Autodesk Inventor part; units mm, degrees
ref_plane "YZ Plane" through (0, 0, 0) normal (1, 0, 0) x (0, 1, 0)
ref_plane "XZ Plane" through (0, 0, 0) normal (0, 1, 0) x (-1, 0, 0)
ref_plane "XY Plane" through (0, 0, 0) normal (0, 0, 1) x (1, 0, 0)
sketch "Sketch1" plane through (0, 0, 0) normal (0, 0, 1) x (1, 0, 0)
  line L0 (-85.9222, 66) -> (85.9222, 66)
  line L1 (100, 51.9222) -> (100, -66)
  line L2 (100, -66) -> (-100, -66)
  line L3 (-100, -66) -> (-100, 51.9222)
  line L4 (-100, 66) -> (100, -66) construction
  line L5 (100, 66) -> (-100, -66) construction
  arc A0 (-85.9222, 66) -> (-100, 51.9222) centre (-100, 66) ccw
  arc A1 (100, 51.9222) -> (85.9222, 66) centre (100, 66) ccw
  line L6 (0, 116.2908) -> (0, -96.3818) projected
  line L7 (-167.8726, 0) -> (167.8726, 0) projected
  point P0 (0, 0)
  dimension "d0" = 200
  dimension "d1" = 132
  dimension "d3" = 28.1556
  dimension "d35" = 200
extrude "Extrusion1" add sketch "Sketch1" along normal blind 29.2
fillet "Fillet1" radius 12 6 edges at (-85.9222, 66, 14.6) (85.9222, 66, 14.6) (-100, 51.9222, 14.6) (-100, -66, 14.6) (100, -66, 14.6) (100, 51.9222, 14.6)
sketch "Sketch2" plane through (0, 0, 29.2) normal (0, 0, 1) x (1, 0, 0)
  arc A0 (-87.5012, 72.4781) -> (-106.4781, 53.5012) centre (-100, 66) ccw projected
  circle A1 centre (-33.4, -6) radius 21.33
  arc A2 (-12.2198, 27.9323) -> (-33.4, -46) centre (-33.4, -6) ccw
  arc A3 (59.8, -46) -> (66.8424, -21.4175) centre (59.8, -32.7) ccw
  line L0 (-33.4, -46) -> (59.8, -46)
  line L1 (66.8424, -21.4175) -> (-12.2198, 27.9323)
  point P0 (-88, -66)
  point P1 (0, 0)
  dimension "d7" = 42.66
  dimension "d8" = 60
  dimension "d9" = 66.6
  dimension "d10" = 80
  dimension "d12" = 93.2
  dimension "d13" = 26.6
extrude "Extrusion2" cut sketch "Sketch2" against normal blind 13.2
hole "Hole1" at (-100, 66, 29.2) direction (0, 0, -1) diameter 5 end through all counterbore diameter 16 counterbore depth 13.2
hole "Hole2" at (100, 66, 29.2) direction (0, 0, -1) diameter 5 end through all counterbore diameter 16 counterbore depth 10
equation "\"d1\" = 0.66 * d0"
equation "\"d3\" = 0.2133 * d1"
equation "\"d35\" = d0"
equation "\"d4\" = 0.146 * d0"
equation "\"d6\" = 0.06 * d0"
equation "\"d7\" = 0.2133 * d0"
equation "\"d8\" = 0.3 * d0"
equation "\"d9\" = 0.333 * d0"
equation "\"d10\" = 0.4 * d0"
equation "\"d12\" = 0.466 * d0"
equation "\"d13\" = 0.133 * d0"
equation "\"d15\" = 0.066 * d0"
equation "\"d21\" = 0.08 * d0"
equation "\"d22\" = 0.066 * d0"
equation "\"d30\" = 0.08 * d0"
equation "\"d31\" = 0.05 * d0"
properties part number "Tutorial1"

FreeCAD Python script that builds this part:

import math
import FreeCAD as App
import Part
import Sketcher
Q = App.Units.Quantity


def edges_at(feature, points):
    """Names of the edges that pass closest to the given points."""
    edges = feature.Shape.Edges
    near = lambda p: min(range(len(edges)), key=lambda i: edges[i].distToShape(Part.Vertex(*p))[0])
    return sorted({f"Edge{near(p) + 1}" for p in points})

doc = App.newDocument("Part")
body = doc.addObject("PartDesign::Body", "Body")

# Sketch on XY plane
sketch1 = body.newObject("Sketcher::SketchObject", "Sketch")
sketch1.AttachmentSupport = (doc.getObject("XY_Plane"), [""])
sketch1.MapMode = "FlatFace"
sketch1.addGeometry([
    Part.ArcOfCircle(Part.Circle(App.Vector(-100, 66, 0), App.Vector(0, 0, 1), 14), math.radians(0), math.radians(270)),  # 0
    Part.LineSegment(App.Vector(-100, 52, 0), App.Vector(-100, -66, 0)),  # 1
    Part.LineSegment(App.Vector(-100, -66, 0), App.Vector(100, -66, 0)),  # 2
    Part.LineSegment(App.Vector(100, -66, 0), App.Vector(100, 52, 0)),  # 3
    Part.ArcOfCircle(Part.Circle(App.Vector(100, 66, 0), App.Vector(0, 0, 1), 14), math.radians(-90), math.radians(180)),  # 4
    Part.LineSegment(App.Vector(86, 66, 0), App.Vector(-86, 66, 0)),  # 5
], False)
sketch1.addConstraint([
    Sketcher.Constraint("Coincident", 0, 2, 1, 1),
    Sketcher.Constraint("Coincident", 1, 2, 2, 1),
    Sketcher.Constraint("Coincident", 2, 2, 3, 1),
    Sketcher.Constraint("Coincident", 3, 2, 4, 1),
    Sketcher.Constraint("Coincident", 4, 2, 5, 1),
    Sketcher.Constraint("Coincident", 5, 2, 0, 1),
    Sketcher.Constraint("Vertical", 1),
    Sketcher.Constraint("Horizontal", 2),
    Sketcher.Constraint("Vertical", 3),
    Sketcher.Constraint("Horizontal", 5),
    Sketcher.Constraint("Equal", 0, 4),
    Sketcher.Constraint("Symmetric", 0, 3, 4, 3, -2),
    Sketcher.Constraint("Horizontal", 0, 3, 4, 2),
    Sketcher.Constraint("Vertical", 4, 3, 2, 2),
    Sketcher.Constraint("DistanceX", 2, 1, 2, 2, Q("200 mm")),
    Sketcher.Constraint("DistanceX", 0, 3, 4, 3, Q("200 mm")),
    Sketcher.Constraint("DistanceY", 1, 2, 0, 3, Q("132 mm")),
    Sketcher.Constraint("Radius", 0, Q("14.0778 mm")),
    Sketcher.Constraint("DistanceY", -1, 1, 0, 3, Q("66 mm")),
])
pad1 = body.newObject("PartDesign::Pad", "Pad")
pad1.Profile = sketch1
pad1.Length = 29.2
doc.recompute()

fillet = body.newObject("PartDesign::Fillet", "Fillet")
fillet.Base = (pad1, edges_at(pad1, [
    (-85.922, 66, 14.6),
    (85.922, 66, 14.6),
    (-100, 51.922, 14.6),
    (-100, -66, 14.6),
    (100, -66, 14.6),
    (100, 51.922, 14.6),
]))
fillet.Radius = 12

# Sketch on XY plane
sketch2 = body.newObject("Sketcher::SketchObject", "Sketch001")
sketch2.AttachmentSupport = (doc.getObject("XY_Plane"), [""])
sketch2.MapMode = "FlatFace"
sketch2.AttachmentOffset = App.Placement(App.Vector(0, 0, 29.2), App.Rotation())
sketch2.addGeometry([
    Part.LineSegment(App.Vector(67, -21, 0), App.Vector(-12, 28, 0)),  # 0
    Part.ArcOfCircle(Part.Circle(App.Vector(-33, -6, 0), App.Vector(0, 0, 1), 40), math.radians(58), math.radians(270)),  # 1
    Part.LineSegment(App.Vector(-33, -46, 0), App.Vector(60, -46, 0)),  # 2
    Part.ArcOfCircle(Part.Circle(App.Vector(60, -33, 0), App.Vector(0, 0, 1), 13), math.radians(-90), math.radians(58)),  # 3
    Part.Circle(App.Vector(-33, -6, 0), App.Vector(0, 0, 1), 21),  # 4
], False)
sketch2.addConstraint([
    Sketcher.Constraint("Tangent", 0, 2, 1, 1),
    Sketcher.Constraint("Tangent", 1, 2, 2, 1),
    Sketcher.Constraint("Tangent", 2, 2, 3, 1),
    Sketcher.Constraint("Tangent", 3, 2, 0, 1),
    Sketcher.Constraint("Horizontal", 2),
    Sketcher.Constraint("Coincident", 4, 3, 1, 3),
    Sketcher.Constraint("Radius", 1, Q("40 mm")),
    Sketcher.Constraint("Radius", 3, Q("13.3 mm")),
    Sketcher.Constraint("Diameter", 4, Q("42.66 mm")),
    Sketcher.Constraint("DistanceX", 2, 1, 2, 2, Q("93.2 mm")),
    Sketcher.Constraint("DistanceY", 1, 3, -1, 1, Q("6 mm")),
    Sketcher.Constraint("DistanceX", 1, 3, -1, 1, Q("33.4 mm")),
])
pocket1 = body.newObject("PartDesign::Pocket", "Pocket")
pocket1.Profile = sketch2
pocket1.Length = 13.2

# Sketch on XY plane
sketch3 = body.newObject("Sketcher::SketchObject", "Sketch002")
sketch3.AttachmentSupport = (doc.getObject("XY_Plane"), [""])
sketch3.MapMode = "FlatFace"
sketch3.AttachmentOffset = App.Placement(App.Vector(0, 0, 29.2), App.Rotation())
sketch3.addGeometry(Part.Circle(App.Vector(-100, 66, 0), App.Vector(0, 0, 1), 2.5), False)
sketch3.addConstraint([
    Sketcher.Constraint("Diameter", 0, Q("5 mm")),
    Sketcher.Constraint("DistanceX", 0, 3, -1, 1, Q("100 mm")),
    Sketcher.Constraint("DistanceY", -1, 1, 0, 3, Q("66 mm")),
])
doc.recompute()
hole = body.newObject("PartDesign::Hole", "Hole")
hole.Profile = sketch3
hole.ThreadType = "None"
hole.Diameter = 5
hole.DepthType = "ThroughAll"
hole.HoleCutType = "Counterbore"
hole.HoleCutDiameter = 16
hole.HoleCutDepth = 13.2

# Sketch on XY plane
sketch4 = body.newObject("Sketcher::SketchObject", "Sketch003")
sketch4.AttachmentSupport = (doc.getObject("XY_Plane"), [""])
sketch4.MapMode = "FlatFace"
sketch4.AttachmentOffset = App.Placement(App.Vector(0, 0, 29.2), App.Rotation())
sketch4.addGeometry(Part.Circle(App.Vector(100, 66, 0), App.Vector(0, 0, 1), 2.5), False)
sketch4.addConstraint([
    Sketcher.Constraint("Diameter", 0, Q("5 mm")),
    Sketcher.Constraint("DistanceX", -1, 1, 0, 3, Q("100 mm")),
    Sketcher.Constraint("DistanceY", -1, 1, 0, 3, Q("66 mm")),
])
doc.recompute()
hole2 = body.newObject("PartDesign::Hole", "Hole001")
hole2.Profile = sketch4
hole2.ThreadType = "None"
hole2.Diameter = 5
hole2.DepthType = "ThroughAll"
hole2.HoleCutType = "Counterbore"
hole2.HoleCutDiameter = 16
hole2.HoleCutDepth = 10

doc.recompute()
